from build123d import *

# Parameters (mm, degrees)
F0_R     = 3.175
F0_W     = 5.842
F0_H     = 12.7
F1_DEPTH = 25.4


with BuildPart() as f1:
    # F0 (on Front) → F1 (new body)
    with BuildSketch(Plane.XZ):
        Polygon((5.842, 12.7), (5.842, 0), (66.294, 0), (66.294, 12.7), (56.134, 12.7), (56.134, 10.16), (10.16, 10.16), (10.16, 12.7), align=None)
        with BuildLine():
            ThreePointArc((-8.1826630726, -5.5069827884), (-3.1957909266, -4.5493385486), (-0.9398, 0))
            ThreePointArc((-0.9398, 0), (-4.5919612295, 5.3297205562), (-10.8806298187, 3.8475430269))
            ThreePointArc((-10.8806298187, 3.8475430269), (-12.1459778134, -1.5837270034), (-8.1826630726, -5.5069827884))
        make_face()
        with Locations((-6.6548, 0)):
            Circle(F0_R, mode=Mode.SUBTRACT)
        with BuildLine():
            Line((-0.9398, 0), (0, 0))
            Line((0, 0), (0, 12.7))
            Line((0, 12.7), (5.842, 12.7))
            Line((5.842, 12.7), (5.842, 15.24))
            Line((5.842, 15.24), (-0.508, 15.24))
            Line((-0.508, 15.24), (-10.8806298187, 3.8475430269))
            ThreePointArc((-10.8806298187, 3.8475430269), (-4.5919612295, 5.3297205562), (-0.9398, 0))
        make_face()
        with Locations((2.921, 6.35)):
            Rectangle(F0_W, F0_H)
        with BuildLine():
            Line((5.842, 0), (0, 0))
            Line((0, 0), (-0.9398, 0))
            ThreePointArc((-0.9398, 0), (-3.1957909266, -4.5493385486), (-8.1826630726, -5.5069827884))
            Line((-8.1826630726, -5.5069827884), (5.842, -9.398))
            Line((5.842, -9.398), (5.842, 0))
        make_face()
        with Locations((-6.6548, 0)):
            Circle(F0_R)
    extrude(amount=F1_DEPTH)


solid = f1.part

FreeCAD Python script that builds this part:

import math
import FreeCAD as App
import Part
import Sketcher
from FreeCAD import Vector
Q = App.Units.Quantity

doc = App.newDocument("Part")
body = doc.addObject("PartDesign::Body", "Body")

# Sketch on XZ plane
sketch1 = doc.addObject("Sketcher::SketchObject", "Sketch")
body.addObject(sketch1)
sketch1.AttachmentSupport = (doc.XZ_Plane, [""])
sketch1.MapMode = "FlatFace"
sketch1.addGeometry([
    Part.LineSegment(Vector(66.3, 0, 0), Vector(66.3, 12.7, 0)),  # 0
    Part.LineSegment(Vector(66.3, 12.7, 0), Vector(56.1, 12.7, 0)),  # 1
    Part.LineSegment(Vector(56.1, 12.7, 0), Vector(56.1, 10.2, 0)),  # 2
    Part.LineSegment(Vector(56.1, 10.2, 0), Vector(10.2, 10.2, 0)),  # 3
    Part.LineSegment(Vector(10.2, 10.2, 0), Vector(10.2, 12.7, 0)),  # 4
    Part.LineSegment(Vector(10.2, 12.7, 0), Vector(5.8, 12.7, 0)),  # 5
    Part.LineSegment(Vector(5.8, 12.7, 0), Vector(5.8, 15.2, 0)),  # 6
    Part.LineSegment(Vector(5.8, 15.2, 0), Vector(-0.5, 15.2, 0)),  # 7
    Part.LineSegment(Vector(-0.5, 15.2, 0), Vector(-10.9, 3.8, 0)),  # 8
    Part.ArcOfCircle(Part.Circle(Vector(-6.7, 0, 0), Vector(0, 0, 1), 5.7), math.radians(138), math.radians(254)),  # 9
    Part.LineSegment(Vector(-8.2, -5.5, 0), Vector(5.8, -9.4, 0)),  # 10
    Part.LineSegment(Vector(5.8, -9.4, 0), Vector(5.8, 0, 0)),  # 11
    Part.LineSegment(Vector(5.8, 0, 0), Vector(66.3, 0, 0)),  # 12
], False)
sketch1.addConstraint([
    Sketcher.Constraint("Coincident", 0, 2, 1, 1),
    Sketcher.Constraint("Coincident", 1, 2, 2, 1),
    Sketcher.Constraint("Coincident", 2, 2, 3, 1),
    Sketcher.Constraint("Coincident", 3, 2, 4, 1),
    Sketcher.Constraint("Coincident", 4, 2, 5, 1),
    Sketcher.Constraint("Coincident", 5, 2, 6, 1),
    Sketcher.Constraint("Coincident", 6, 2, 7, 1),
    Sketcher.Constraint("Coincident", 7, 2, 8, 1),
    Sketcher.Constraint("Tangent", 8, 2, 9, 1),
    Sketcher.Constraint("Tangent", 9, 2, 10, 1),
    Sketcher.Constraint("Coincident", 10, 2, 11, 1),
    Sketcher.Constraint("Coincident", 11, 2, 12, 1),
    Sketcher.Constraint("Coincident", 12, 2, 0, 1),
    Sketcher.Constraint("Vertical", 0),
    Sketcher.Constraint("Horizontal", 1),
    Sketcher.Constraint("Vertical", 2),
    Sketcher.Constraint("Horizontal", 3),
    Sketcher.Constraint("Vertical", 4),
    Sketcher.Constraint("Horizontal", 5),
    Sketcher.Constraint("Vertical", 6),
    Sketcher.Constraint("Horizontal", 7),
    Sketcher.Constraint("Vertical", 11),
    Sketcher.Constraint("Horizontal", 12),
    Sketcher.Constraint("PointOnObject", 9, 3, -1),
    Sketcher.Constraint("PointOnObject", 11, 2, -1),
    Sketcher.Constraint("Horizontal", 1, 2, 4, 2),
    Sketcher.Constraint("Vertical", 6, 2, 10, 2),
    Sketcher.Constraint("Equal", 4, 6),
    Sketcher.Constraint("DistanceX", 1, 2, 1, 1, Q("0.4 in")),
    Sketcher.Constraint("DistanceY", 0, 1, 0, 2, Q("0.5 in")),
    Sketcher.Constraint("DistanceY", 2, 2, 2, 1, Q("0.1 in")),
    Sketcher.Constraint("Radius", 9, Q("0.225 in")),
    Sketcher.Constraint("DistanceX", 3, 2, 3, 1, Q("1.81 in")),
    Sketcher.Constraint("DistanceX", 5, 2, 5, 1, Q("0.17 in")),
    Sketcher.Constraint("DistanceX", 7, 2, 7, 1, Q("0.25 in")),
    Sketcher.Constraint("DistanceY", 11, 1, 11, 2, Q("0.37 in")),
    Sketcher.Constraint("DistanceX", -1, 1, 3, 2, Q("0.4 in")),
    Sketcher.Constraint("DistanceX", 9, 3, -1, 1, Q("0.262 in")),
])
pad1 = doc.addObject("PartDesign::Pad", "Pad")
body.addObject(pad1)
pad1.Profile = sketch1
pad1.Length = Q("1 in")

doc.recompute()
